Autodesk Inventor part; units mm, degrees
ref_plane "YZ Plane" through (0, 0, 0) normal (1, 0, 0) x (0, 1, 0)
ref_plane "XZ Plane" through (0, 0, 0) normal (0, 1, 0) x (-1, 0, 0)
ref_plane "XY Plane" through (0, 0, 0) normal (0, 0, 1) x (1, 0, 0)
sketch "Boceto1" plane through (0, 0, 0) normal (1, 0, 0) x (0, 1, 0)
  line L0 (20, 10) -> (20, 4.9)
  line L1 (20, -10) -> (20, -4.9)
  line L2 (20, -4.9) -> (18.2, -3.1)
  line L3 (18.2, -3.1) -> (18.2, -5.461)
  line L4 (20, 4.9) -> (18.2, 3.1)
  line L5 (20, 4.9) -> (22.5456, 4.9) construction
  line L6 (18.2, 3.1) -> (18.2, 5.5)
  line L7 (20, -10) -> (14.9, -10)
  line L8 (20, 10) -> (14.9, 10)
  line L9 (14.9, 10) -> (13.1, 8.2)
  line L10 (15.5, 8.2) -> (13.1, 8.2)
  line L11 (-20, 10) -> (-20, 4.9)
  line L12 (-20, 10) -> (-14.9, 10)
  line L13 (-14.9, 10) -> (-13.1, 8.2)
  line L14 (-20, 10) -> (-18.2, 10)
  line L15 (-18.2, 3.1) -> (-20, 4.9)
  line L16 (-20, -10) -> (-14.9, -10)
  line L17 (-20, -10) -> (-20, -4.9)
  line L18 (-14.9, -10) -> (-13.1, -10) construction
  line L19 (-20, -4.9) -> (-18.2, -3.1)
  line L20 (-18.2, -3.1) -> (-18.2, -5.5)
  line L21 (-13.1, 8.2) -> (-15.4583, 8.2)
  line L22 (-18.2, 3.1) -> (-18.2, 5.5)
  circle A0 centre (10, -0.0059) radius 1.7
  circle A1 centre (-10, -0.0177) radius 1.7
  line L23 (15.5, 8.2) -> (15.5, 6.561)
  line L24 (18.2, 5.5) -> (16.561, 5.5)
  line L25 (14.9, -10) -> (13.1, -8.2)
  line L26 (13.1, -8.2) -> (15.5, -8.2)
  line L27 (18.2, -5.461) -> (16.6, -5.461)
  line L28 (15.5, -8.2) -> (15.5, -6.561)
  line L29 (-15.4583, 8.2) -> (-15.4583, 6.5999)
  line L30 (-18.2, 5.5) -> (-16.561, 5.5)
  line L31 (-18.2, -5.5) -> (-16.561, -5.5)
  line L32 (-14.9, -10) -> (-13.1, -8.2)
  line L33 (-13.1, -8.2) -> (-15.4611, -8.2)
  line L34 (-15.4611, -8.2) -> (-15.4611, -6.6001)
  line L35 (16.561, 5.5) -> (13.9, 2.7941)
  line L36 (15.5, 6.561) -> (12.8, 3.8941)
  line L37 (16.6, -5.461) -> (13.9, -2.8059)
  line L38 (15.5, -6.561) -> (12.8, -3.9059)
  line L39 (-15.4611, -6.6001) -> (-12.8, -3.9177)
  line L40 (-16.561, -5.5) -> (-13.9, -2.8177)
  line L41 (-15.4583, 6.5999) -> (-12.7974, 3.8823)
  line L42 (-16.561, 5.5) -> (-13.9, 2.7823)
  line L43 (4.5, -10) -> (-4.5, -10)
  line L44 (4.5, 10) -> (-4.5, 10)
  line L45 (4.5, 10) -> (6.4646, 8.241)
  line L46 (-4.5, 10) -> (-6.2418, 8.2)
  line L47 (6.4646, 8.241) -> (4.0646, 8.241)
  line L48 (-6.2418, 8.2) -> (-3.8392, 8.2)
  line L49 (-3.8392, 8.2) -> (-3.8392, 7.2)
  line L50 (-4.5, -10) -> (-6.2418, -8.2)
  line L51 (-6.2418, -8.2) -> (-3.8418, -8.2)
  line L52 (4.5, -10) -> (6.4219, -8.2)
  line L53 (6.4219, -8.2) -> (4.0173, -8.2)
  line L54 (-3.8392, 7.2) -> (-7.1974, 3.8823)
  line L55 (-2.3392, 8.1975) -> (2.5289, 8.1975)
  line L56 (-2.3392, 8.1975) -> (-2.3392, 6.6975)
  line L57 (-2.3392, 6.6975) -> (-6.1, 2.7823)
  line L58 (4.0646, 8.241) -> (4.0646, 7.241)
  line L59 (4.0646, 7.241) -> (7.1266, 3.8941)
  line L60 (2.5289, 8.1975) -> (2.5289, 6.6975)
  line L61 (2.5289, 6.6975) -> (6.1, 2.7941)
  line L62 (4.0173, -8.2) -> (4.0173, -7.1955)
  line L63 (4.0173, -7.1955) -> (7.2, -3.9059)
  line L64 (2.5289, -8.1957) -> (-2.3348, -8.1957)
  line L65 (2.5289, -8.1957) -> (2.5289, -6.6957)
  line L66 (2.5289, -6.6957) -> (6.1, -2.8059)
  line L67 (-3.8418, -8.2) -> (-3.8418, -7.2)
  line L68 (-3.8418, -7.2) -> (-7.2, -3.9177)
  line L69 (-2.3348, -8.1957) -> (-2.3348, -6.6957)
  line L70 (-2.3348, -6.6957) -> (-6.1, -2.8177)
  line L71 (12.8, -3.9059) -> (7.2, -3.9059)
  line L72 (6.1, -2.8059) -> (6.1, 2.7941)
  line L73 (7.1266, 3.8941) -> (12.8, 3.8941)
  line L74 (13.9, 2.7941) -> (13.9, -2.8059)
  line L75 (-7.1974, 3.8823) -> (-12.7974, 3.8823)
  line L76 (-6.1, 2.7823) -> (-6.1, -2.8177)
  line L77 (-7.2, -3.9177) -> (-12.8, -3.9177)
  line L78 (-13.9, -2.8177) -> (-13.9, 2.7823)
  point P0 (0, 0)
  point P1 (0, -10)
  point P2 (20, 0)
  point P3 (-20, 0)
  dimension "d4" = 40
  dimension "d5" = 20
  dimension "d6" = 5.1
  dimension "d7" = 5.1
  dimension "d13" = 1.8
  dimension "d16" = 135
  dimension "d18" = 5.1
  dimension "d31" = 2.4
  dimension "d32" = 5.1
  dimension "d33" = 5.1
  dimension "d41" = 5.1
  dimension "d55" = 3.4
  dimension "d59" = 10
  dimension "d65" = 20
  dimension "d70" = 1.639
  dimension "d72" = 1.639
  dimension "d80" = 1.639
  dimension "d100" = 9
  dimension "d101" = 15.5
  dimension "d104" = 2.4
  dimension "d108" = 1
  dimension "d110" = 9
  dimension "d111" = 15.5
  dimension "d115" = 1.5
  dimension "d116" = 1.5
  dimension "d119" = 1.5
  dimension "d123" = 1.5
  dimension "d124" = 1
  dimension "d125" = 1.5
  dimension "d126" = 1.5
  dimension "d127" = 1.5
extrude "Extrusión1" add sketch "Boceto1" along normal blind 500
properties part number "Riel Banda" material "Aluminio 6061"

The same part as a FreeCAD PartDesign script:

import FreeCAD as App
import Part
import Sketcher

V = App.Vector


def add_polygon(sketch, points):
    """Adds a closed chain of lines whose ends are joined by coincident constraints."""
    first, n = sketch.GeometryCount, len(points)
    for a, b in zip(points, points[1:] + points[:1]):
        sketch.addGeometry(Part.LineSegment(App.Vector(*a, 0), App.Vector(*b, 0)), False)
    for i in range(n):
        sketch.addConstraint(Sketcher.Constraint("Coincident", first + i, 2, first + (i + 1) % n, 1))

doc = App.newDocument("Part")
body = doc.addObject("PartDesign::Body", "Body")

# Sketch on YZ plane
sketch1 = body.newObject("Sketcher::SketchObject", "Sketch")
sketch1.AttachmentSupport = (doc.getObject("YZ_Plane"), [""])
sketch1.MapMode = "FlatFace"
add_polygon(sketch1, [(20, 4.9), (20, 10), (14.9, 10), (13.1, 8.2), (15.5, 8.2), (15.5, 6.561), (12.8, 3.8941), (7.1266, 3.8941), (4.0646, 7.241), (4.0646, 8.241), (6.4646, 8.241), (4.5, 10), (-4.5, 10), (-6.2418, 8.2), (-3.8392, 8.2), (-3.8392, 7.2), (-7.1974, 3.8823), (-12.7974, 3.8823), (-15.4583, 6.5999), (-15.4583, 8.2), (-13.1, 8.2), (-14.9, 10), (-20, 10), (-20, 4.9), (-18.2, 3.1), (-18.2, 5.5), (-16.561, 5.5), (-13.9, 2.7823), (-13.9, -2.8177), (-16.561, -5.5), (-18.2, -5.5), (-18.2, -3.1), (-20, -4.9), (-20, -10), (-14.9, -10), (-13.1, -8.2), (-15.4611, -8.2), (-15.4611, -6.6001), (-12.8, -3.9177), (-7.2, -3.9177), (-3.8418, -7.2), (-3.8418, -8.2), (-6.2418, -8.2), (-4.5, -10), (4.5, -10), (6.4219, -8.2), (4.0173, -8.2), (4.0173, -7.1955), (7.2, -3.9059), (12.8, -3.9059), (15.5, -6.561), (15.5, -8.2), (13.1, -8.2), (14.9, -10), (20, -10), (20, -4.9), (18.2, -3.1), (18.2, -5.461), (16.6, -5.461), (13.9, -2.8059), (13.9, 2.7941), (16.561, 5.5), (18.2, 5.5), (18.2, 3.1)])  # lines 0-63
sketch1.addGeometry(Part.Circle(V(-10, -0.0177, 0), V(0, 0, 1), 1.7), False)  # 64
sketch1.addGeometry(Part.Circle(V(10, -0.0059, 0), V(0, 0, 1), 1.7), False)  # 65
add_polygon(sketch1, [(-2.3392, 6.6975), (-2.3392, 8.1975), (2.5289, 8.1975), (2.5289, 6.6975), (6.1, 2.7941), (6.1, -2.8059), (2.5289, -6.6957), (2.5289, -8.1957), (-2.3348, -8.1957), (-2.3348, -6.6957), (-6.1, -2.8177), (-6.1, 2.7823)])  # lines 66-77
sketch1.addConstraint(Sketcher.Constraint("Vertical", 0))
sketch1.addConstraint(Sketcher.Constraint("Horizontal", 1))
sketch1.addConstraint(Sketcher.Constraint("Horizontal", 3))
sketch1.addConstraint(Sketcher.Constraint("Vertical", 4))
sketch1.addConstraint(Sketcher.Constraint("Horizontal", 6))
sketch1.addConstraint(Sketcher.Constraint("Vertical", 8))
sketch1.addConstraint(Sketcher.Constraint("Horizontal", 9))
sketch1.addConstraint(Sketcher.Constraint("Horizontal", 11))
sketch1.addConstraint(Sketcher.Constraint("Horizontal", 13))
sketch1.addConstraint(Sketcher.Constraint("Vertical", 14))
sketch1.addConstraint(Sketcher.Constraint("Horizontal", 16))
sketch1.addConstraint(Sketcher.Constraint("Vertical", 18))
sketch1.addConstraint(Sketcher.Constraint("Horizontal", 19))
sketch1.addConstraint(Sketcher.Constraint("Horizontal", 21))
sketch1.addConstraint(Sketcher.Constraint("Vertical", 22))
sketch1.addConstraint(Sketcher.Constraint("Vertical", 24))
sketch1.addConstraint(Sketcher.Constraint("Horizontal", 25))
sketch1.addConstraint(Sketcher.Constraint("Vertical", 27))
sketch1.addConstraint(Sketcher.Constraint("Horizontal", 29))
sketch1.addConstraint(Sketcher.Constraint("Vertical", 30))
sketch1.addConstraint(Sketcher.Constraint("Vertical", 32))
sketch1.addConstraint(Sketcher.Constraint("Horizontal", 33))
sketch1.addConstraint(Sketcher.Constraint("Horizontal", 35))
sketch1.addConstraint(Sketcher.Constraint("Vertical", 36))
sketch1.addConstraint(Sketcher.Constraint("Horizontal", 38))
sketch1.addConstraint(Sketcher.Constraint("Vertical", 40))
sketch1.addConstraint(Sketcher.Constraint("Horizontal", 41))
sketch1.addConstraint(Sketcher.Constraint("Horizontal", 43))
sketch1.addConstraint(Sketcher.Constraint("Horizontal", 45))
sketch1.addConstraint(Sketcher.Constraint("Vertical", 46))
sketch1.addConstraint(Sketcher.Constraint("Horizontal", 48))
sketch1.addConstraint(Sketcher.Constraint("Vertical", 50))
sketch1.addConstraint(Sketcher.Constraint("Horizontal", 51))
sketch1.addConstraint(Sketcher.Constraint("Horizontal", 53))
sketch1.addConstraint(Sketcher.Constraint("Vertical", 54))
sketch1.addConstraint(Sketcher.Constraint("Vertical", 56))
sketch1.addConstraint(Sketcher.Constraint("Horizontal", 57))
sketch1.addConstraint(Sketcher.Constraint("Vertical", 59))
sketch1.addConstraint(Sketcher.Constraint("Horizontal", 61))
sketch1.addConstraint(Sketcher.Constraint("Vertical", 62))
sketch1.addConstraint(Sketcher.Constraint("Vertical", 66))
sketch1.addConstraint(Sketcher.Constraint("Horizontal", 67))
sketch1.addConstraint(Sketcher.Constraint("Vertical", 68))
sketch1.addConstraint(Sketcher.Constraint("Vertical", 70))
sketch1.addConstraint(Sketcher.Constraint("Vertical", 72))
sketch1.addConstraint(Sketcher.Constraint("Horizontal", 73))
sketch1.addConstraint(Sketcher.Constraint("Vertical", 74))
sketch1.addConstraint(Sketcher.Constraint("Vertical", 76))
sketch1.addConstraint(Sketcher.Constraint("Diameter", 64, 3.4))
sketch1.addConstraint(Sketcher.Constraint("Diameter", 65, 3.4))
sketch1.addConstraint(Sketcher.Constraint("DistanceX", 11, 2, 11, 1, 9.0))
sketch1.addConstraint(Sketcher.Constraint("DistanceX", 43, 1, 43, 2, 9.0))
sketch1.addConstraint(Sketcher.Constraint("DistanceY", 8, 1, 8, 2, 1.0))
sketch1.addConstraint(Sketcher.Constraint("DistanceY", 14, 2, 14, 1, 1.0))
sketch1.addConstraint(Sketcher.Constraint("DistanceY", 40, 2, 40, 1, 1.0))
sketch1.addConstraint(Sketcher.Constraint("DistanceX", 1, 2, 1, 1, 5.1))
sketch1.addConstraint(Sketcher.Constraint("DistanceX", 3, 1, 3, 2, 2.4))
sketch1.addConstraint(Sketcher.Constraint("DistanceX", 9, 1, 9, 2, 2.4))
sketch1.addConstraint(Sketcher.Constraint("DistanceX", 21, 2, 21, 1, 5.1))
sketch1.addConstraint(Sketcher.Constraint("DistanceX", 33, 1, 33, 2, 5.1))
sketch1.addConstraint(Sketcher.Constraint("DistanceX", 41, 2, 41, 1, 2.4))
sketch1.addConstraint(Sketcher.Constraint("DistanceX", 51, 2, 51, 1, 2.4))
sketch1.addConstraint(Sketcher.Constraint("DistanceX", 53, 1, 53, 2, 5.1))
sketch1.addConstraint(Sketcher.Constraint("DistanceY", 0, 1, 0, 2, 5.1))
sketch1.addConstraint(Sketcher.Constraint("DistanceY", 22, 2, 22, 1, 5.1))
sketch1.addConstraint(Sketcher.Constraint("DistanceY", 24, 1, 24, 2, 2.4))
sketch1.addConstraint(Sketcher.Constraint("DistanceY", 30, 1, 30, 2, 2.4))
sketch1.addConstraint(Sketcher.Constraint("DistanceY", 32, 2, 32, 1, 5.1))
sketch1.addConstraint(Sketcher.Constraint("DistanceY", 54, 1, 54, 2, 5.1))
sketch1.addConstraint(Sketcher.Constraint("DistanceY", 62, 2, 62, 1, 2.4))
sketch1.addConstraint(Sketcher.Constraint("DistanceY", 66, 1, 66, 2, 1.5))
sketch1.addConstraint(Sketcher.Constraint("DistanceY", 68, 2, 68, 1, 1.5))
sketch1.addConstraint(Sketcher.Constraint("DistanceY", 72, 2, 72, 1, 1.5))
sketch1.addConstraint(Sketcher.Constraint("DistanceY", 74, 1, 74, 2, 1.5))
sketch1.addConstraint(Sketcher.Constraint("DistanceX", 64, 3, -1, 1, 10.0))
sketch1.addConstraint(Sketcher.Constraint("DistanceX", -1, 1, 65, 3, 10.0))
sketch1.addConstraint(Sketcher.Constraint("DistanceX", -1, 1, 0, 2, 20.0))
sketch1.addConstraint(Sketcher.Constraint("DistanceY", -1, 1, 0, 2, 10.0))
sketch1.addConstraint(Sketcher.Constraint("DistanceY", -1, 1, 10, 2, 10.0))
sketch1.addConstraint(Sketcher.Constraint("DistanceY", -1, 1, 20, 2, 10.0))
sketch1.addConstraint(Sketcher.Constraint("DistanceX", 21, 2, -1, 1, 20.0))
sketch1.addConstraint(Sketcher.Constraint("DistanceX", 31, 2, -1, 1, 20.0))
sketch1.addConstraint(Sketcher.Constraint("DistanceY", 32, 2, -1, 1, 10.0))
sketch1.addConstraint(Sketcher.Constraint("DistanceY", 42, 2, -1, 1, 10.0))
sketch1.addConstraint(Sketcher.Constraint("DistanceY", 52, 2, -1, 1, 10.0))
sketch1.addConstraint(Sketcher.Constraint("DistanceX", -1, 1, 53, 2, 20.0))
sketch1.addConstraint(Sketcher.Constraint("DistanceX", -1, 1, 3, 2, 15.5))
sketch1.addConstraint(Sketcher.Constraint("DistanceX", -1, 1, 49, 2, 15.5))
sketch1.addConstraint(Sketcher.Constraint("DistanceX", 25, 1, 25, 2, 1.639))
sketch1.addConstraint(Sketcher.Constraint("DistanceX", 29, 2, 29, 1, 1.639))
sketch1.addConstraint(Sketcher.Constraint("DistanceX", 61, 1, 61, 2, 1.639))
sketch1.addConstraint(Sketcher.Constraint("DistanceY", 4, 2, 4, 1, 1.639))
sketch1.addConstraint(Sketcher.Constraint("DistanceY", 50, 2, 50, 1, 1.639))
sketch1.addConstraint(Sketcher.Constraint("DistanceX", 16, 2, 16, 1, 5.6))
sketch1.addConstraint(Sketcher.Constraint("DistanceX", 38, 1, 38, 2, 5.6))
sketch1.addConstraint(Sketcher.Constraint("DistanceX", 48, 1, 48, 2, 5.6))
sketch1.addConstraint(Sketcher.Constraint("DistanceX", 57, 2, 57, 1, 1.6))
sketch1.addConstraint(Sketcher.Constraint("DistanceY", 18, 1, 18, 2, 1.6))
sketch1.addConstraint(Sketcher.Constraint("DistanceY", 27, 2, 27, 1, 5.6))
sketch1.addConstraint(Sketcher.Constraint("DistanceY", 36, 1, 36, 2, 1.6))
sketch1.addConstraint(Sketcher.Constraint("DistanceY", 59, 1, 59, 2, 5.6))
sketch1.addConstraint(Sketcher.Constraint("DistanceY", 70, 2, 70, 1, 5.6))
sketch1.addConstraint(Sketcher.Constraint("DistanceY", 76, 1, 76, 2, 5.6))
sketch1.addConstraint(Sketcher.Constraint("DistanceY", -1, 1, 2, 2, 8.2))
sketch1.addConstraint(Sketcher.Constraint("DistanceX", -1, 1, 5, 2, 12.8))
sketch1.addConstraint(Sketcher.Constraint("DistanceX", -1, 1, 10, 2, 4.5))
sketch1.addConstraint(Sketcher.Constraint("DistanceY", -1, 1, 12, 2, 8.2))
sketch1.addConstraint(Sketcher.Constraint("DistanceY", -1, 1, 17, 2, 6.6))
sketch1.addConstraint(Sketcher.Constraint("DistanceX", 19, 2, -1, 1, 13.1))
sketch1.addConstraint(Sketcher.Constraint("DistanceX", 23, 2, -1, 1, 18.2))
sketch1.addConstraint(Sketcher.Constraint("DistanceY", -1, 1, 23, 2, 3.1))
sketch1.addConstraint(Sketcher.Constraint("DistanceX", 26, 2, -1, 1, 13.9))
sketch1.addConstraint(Sketcher.Constraint("DistanceY", 28, 2, -1, 1, 5.5))
sketch1.addConstraint(Sketcher.Constraint("DistanceX", 29, 2, -1, 1, 18.2))
sketch1.addConstraint(Sketcher.Constraint("DistanceX", 34, 2, -1, 1, 13.1))
sketch1.addConstraint(Sketcher.Constraint("DistanceY", 34, 2, -1, 1, 8.2))
sketch1.addConstraint(Sketcher.Constraint("DistanceX", 37, 2, -1, 1, 12.8))
sketch1.addConstraint(Sketcher.Constraint("DistanceY", 39, 2, -1, 1, 7.2))
sketch1.addConstraint(Sketcher.Constraint("DistanceX", 42, 2, -1, 1, 4.5))
sketch1.addConstraint(Sketcher.Constraint("DistanceY", 44, 2, -1, 1, 8.2))
sketch1.addConstraint(Sketcher.Constraint("DistanceX", -1, 1, 47, 2, 7.2))
sketch1.addConstraint(Sketcher.Constraint("DistanceY", 50, 2, -1, 1, 8.2))
sketch1.addConstraint(Sketcher.Constraint("DistanceX", -1, 1, 55, 2, 18.2))
sketch1.addConstraint(Sketcher.Constraint("DistanceY", 55, 2, -1, 1, 3.1))
sketch1.addConstraint(Sketcher.Constraint("DistanceX", -1, 1, 58, 2, 13.9))
sketch1.addConstraint(Sketcher.Constraint("DistanceY", -1, 1, 60, 2, 5.5))
sketch1.addConstraint(Sketcher.Constraint("DistanceX", -1, 1, 61, 2, 18.2))
sketch1.addConstraint(Sketcher.Constraint("DistanceX", -1, 1, 69, 2, 6.1))
sketch1.addConstraint(Sketcher.Constraint("DistanceX", 75, 2, -1, 1, 6.1))
sketch1.addConstraint(Sketcher.Constraint("DistanceX", 35, 2, 35, 1, 2.361))
sketch1.addConstraint(Sketcher.Constraint("DistanceX", 67, 1, 67, 2, 4.868))
sketch1.addConstraint(Sketcher.Constraint("DistanceY", 56, 2, 56, 1, 2.361))
sketch1.addConstraint(Sketcher.Constraint("Distance", 5, 3.795))
sketch1.addConstraint(Sketcher.Constraint("Distance", 10, 2.637))
sketch1.addConstraint(Sketcher.Constraint("Distance", 60, 3.795))
sketch1.addConstraint(Sketcher.Constraint("DistanceX", 6, 2, 6, 1, 5.6734))
sketch1.addConstraint(Sketcher.Constraint("DistanceX", 13, 1, 13, 2, 2.4026))
sketch1.addConstraint(Sketcher.Constraint("DistanceX", 19, 1, 19, 2, 2.3583))
sketch1.addConstraint(Sketcher.Constraint("DistanceX", 45, 2, 45, 1, 2.4046))
sketch1.addConstraint(Sketcher.Constraint("DistanceX", 73, 2, 73, 1, 4.8637))
sketch1.addConstraint(Sketcher.Constraint("DistanceY", 46, 1, 46, 2, 1.0045))
sketch1.addConstraint(Sketcher.Constraint("DistanceY", 65, 3, -1, 1, 0.006))
sketch1.addConstraint(Sketcher.Constraint("DistanceY", -1, 1, 7, 2, 7.241))
sketch1.addConstraint(Sketcher.Constraint("DistanceX", -1, 1, 44, 2, 6.422))
sketch1.addConstraint(Sketcher.Constraint("DistanceY", 47, 2, -1, 1, 3.906))
sketch1.addConstraint(Sketcher.Constraint("DistanceX", -1, 1, 67, 2, 2.529))
sketch1.addConstraint(Sketcher.Constraint("DistanceY", -1, 1, 69, 2, 2.794))
sketch1.addConstraint(Sketcher.Constraint("DistanceX", -1, 1, 71, 2, 2.529))
sketch1.addConstraint(Sketcher.Constraint("Distance", 12, 2.5048))
sketch1.addConstraint(Sketcher.Constraint("Distance", 15, 4.7207))
sketch1.addConstraint(Sketcher.Constraint("Distance", 17, 3.8034))
sketch1.addConstraint(Sketcher.Constraint("Distance", 26, 3.8035))
sketch1.addConstraint(Sketcher.Constraint("Distance", 37, 3.7785))
sketch1.addConstraint(Sketcher.Constraint("Distance", 39, 4.6958))
sketch1.addConstraint(Sketcher.Constraint("Distance", 69, 5.2905))
sketch1.addConstraint(Sketcher.Constraint("Distance", 71, 5.2805))
sketch1.addConstraint(Sketcher.Constraint("Distance", 75, 5.4051))
sketch1.addConstraint(Sketcher.Constraint("DistanceY", 64, 3, -1, 1, 0.0177))
pad1 = body.newObject("PartDesign::Pad", "Pad")
pad1.Profile = sketch1
pad1.Length = 500

doc.recompute()
